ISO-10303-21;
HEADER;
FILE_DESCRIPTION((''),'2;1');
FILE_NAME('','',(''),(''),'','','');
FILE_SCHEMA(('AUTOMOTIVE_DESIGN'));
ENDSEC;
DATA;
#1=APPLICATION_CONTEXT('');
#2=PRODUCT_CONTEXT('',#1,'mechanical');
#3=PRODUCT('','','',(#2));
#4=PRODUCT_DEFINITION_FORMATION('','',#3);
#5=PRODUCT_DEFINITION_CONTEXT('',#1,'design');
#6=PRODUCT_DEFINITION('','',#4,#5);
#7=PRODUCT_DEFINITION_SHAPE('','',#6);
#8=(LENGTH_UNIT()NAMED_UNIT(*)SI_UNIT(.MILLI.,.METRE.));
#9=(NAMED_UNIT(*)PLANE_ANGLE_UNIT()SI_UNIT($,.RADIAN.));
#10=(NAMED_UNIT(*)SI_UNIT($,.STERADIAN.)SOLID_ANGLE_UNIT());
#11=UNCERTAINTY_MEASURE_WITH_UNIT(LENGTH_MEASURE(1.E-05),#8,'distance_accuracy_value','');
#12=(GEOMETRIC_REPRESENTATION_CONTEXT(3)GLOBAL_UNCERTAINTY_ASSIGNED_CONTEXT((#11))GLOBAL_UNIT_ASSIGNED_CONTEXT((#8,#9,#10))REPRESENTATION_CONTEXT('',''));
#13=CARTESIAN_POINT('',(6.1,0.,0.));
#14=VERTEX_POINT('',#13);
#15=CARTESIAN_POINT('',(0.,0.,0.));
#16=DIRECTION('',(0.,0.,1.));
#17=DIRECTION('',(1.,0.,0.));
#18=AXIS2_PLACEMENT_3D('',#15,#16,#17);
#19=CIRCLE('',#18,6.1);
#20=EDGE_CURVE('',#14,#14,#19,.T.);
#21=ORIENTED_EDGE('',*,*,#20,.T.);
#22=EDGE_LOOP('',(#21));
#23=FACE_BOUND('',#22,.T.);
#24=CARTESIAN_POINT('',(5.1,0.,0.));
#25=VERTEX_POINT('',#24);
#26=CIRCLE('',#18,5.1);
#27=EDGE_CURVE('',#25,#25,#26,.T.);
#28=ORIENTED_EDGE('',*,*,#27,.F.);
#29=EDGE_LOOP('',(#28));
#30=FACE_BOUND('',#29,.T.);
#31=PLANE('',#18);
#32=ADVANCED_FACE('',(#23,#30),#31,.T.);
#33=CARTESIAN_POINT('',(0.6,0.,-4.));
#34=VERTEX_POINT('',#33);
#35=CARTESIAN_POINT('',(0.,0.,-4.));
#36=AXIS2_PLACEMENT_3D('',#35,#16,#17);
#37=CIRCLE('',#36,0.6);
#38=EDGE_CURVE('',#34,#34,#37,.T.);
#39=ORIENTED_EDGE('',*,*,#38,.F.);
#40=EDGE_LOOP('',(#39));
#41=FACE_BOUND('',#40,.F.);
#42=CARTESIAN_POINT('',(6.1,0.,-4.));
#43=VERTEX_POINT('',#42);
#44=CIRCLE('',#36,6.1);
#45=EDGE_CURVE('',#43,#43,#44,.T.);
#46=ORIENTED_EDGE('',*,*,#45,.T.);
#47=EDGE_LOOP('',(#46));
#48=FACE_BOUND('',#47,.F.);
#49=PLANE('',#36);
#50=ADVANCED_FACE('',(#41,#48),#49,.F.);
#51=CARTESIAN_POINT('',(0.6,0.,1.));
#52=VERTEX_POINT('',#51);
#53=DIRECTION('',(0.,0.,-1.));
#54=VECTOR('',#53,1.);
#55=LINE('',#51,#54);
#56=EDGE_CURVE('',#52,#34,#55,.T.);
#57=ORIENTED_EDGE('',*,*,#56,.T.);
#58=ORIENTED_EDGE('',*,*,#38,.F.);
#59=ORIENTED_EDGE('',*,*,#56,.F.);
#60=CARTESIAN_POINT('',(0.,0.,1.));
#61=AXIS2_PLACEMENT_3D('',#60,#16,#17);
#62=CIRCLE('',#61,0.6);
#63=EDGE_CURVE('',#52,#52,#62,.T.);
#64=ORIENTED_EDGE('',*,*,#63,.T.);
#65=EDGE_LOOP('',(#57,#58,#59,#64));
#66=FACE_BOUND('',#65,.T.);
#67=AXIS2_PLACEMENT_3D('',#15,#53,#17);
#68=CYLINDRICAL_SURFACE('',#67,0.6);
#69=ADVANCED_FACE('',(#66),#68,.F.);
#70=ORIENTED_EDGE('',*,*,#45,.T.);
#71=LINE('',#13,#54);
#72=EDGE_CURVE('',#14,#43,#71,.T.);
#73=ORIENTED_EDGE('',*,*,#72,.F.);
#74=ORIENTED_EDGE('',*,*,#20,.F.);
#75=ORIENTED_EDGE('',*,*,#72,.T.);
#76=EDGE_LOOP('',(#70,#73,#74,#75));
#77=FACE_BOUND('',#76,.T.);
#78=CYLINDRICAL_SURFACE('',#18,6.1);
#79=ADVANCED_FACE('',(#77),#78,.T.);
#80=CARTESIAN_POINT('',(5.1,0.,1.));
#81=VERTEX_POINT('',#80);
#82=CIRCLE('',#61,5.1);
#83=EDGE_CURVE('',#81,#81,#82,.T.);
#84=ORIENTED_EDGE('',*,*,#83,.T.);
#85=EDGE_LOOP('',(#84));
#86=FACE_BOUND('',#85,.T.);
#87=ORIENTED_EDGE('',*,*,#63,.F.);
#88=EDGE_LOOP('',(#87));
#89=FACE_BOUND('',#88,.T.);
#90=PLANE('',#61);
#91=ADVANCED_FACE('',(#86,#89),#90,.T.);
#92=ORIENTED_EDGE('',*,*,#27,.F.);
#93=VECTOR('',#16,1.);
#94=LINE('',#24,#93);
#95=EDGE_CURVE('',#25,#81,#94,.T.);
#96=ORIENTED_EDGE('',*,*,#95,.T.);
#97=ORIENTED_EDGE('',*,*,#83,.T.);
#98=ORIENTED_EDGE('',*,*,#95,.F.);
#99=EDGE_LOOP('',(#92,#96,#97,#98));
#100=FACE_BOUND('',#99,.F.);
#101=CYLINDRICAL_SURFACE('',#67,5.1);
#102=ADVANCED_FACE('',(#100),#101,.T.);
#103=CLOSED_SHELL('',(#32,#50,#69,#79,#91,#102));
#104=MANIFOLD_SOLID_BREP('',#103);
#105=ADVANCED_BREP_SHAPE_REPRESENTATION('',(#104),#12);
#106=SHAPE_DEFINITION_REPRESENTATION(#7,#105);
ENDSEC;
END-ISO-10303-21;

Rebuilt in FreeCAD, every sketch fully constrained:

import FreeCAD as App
import Part
import Sketcher

V = App.Vector

doc = App.newDocument("Part")
body = doc.addObject("PartDesign::Body", "Body")

sketch1 = doc.addObject("Sketcher::SketchObject", "Sketch")
body.addObject(sketch1)
sketch1.AttachmentSupport = (doc.XY_Plane, [""])
sketch1.MapMode = "FlatFace"
sketch1.addGeometry([
    Part.Circle(V(0, 0, 0), V(0, 0, 1), 5.1),
    Part.Circle(V(0, 0, 0), V(0, 0, 1), 0.6),
], False)
sketch1.addConstraint([
    Sketcher.Constraint("Coincident", 0, 3, -1, 1),
    Sketcher.Constraint("Coincident", 1, 3, -1, 1),
    Sketcher.Constraint("Diameter", 0, 10.2),
    Sketcher.Constraint("Diameter", 1, 1.2),
])
pad1 = doc.addObject("PartDesign::Pad", "Pad")
body.addObject(pad1)
pad1.Profile = sketch1
pad1.Length = 1

sketch2 = doc.addObject("Sketcher::SketchObject", "Sketch001")
body.addObject(sketch2)
sketch2.AttachmentSupport = (doc.XY_Plane, [""])
sketch2.MapMode = "FlatFace"
sketch2.addGeometry([
    Part.Circle(V(0, 0, 0), V(0, 0, 1), 6.1),
    Part.Circle(V(0, 0, 0), V(0, 0, 1), 0.6),
], False)
sketch2.addConstraint([
    Sketcher.Constraint("Coincident", 0, 3, -1, 1),
    Sketcher.Constraint("Coincident", 1, 3, -1, 1),
    Sketcher.Constraint("Diameter", 1, 1.2),
    Sketcher.Constraint("Diameter", 0, 12.2),
])
pad2 = doc.addObject("PartDesign::Pad", "Pad001")
body.addObject(pad2)
pad2.Profile = sketch2
pad2.Length = 4
pad2.Reversed = True

doc.recompute()
